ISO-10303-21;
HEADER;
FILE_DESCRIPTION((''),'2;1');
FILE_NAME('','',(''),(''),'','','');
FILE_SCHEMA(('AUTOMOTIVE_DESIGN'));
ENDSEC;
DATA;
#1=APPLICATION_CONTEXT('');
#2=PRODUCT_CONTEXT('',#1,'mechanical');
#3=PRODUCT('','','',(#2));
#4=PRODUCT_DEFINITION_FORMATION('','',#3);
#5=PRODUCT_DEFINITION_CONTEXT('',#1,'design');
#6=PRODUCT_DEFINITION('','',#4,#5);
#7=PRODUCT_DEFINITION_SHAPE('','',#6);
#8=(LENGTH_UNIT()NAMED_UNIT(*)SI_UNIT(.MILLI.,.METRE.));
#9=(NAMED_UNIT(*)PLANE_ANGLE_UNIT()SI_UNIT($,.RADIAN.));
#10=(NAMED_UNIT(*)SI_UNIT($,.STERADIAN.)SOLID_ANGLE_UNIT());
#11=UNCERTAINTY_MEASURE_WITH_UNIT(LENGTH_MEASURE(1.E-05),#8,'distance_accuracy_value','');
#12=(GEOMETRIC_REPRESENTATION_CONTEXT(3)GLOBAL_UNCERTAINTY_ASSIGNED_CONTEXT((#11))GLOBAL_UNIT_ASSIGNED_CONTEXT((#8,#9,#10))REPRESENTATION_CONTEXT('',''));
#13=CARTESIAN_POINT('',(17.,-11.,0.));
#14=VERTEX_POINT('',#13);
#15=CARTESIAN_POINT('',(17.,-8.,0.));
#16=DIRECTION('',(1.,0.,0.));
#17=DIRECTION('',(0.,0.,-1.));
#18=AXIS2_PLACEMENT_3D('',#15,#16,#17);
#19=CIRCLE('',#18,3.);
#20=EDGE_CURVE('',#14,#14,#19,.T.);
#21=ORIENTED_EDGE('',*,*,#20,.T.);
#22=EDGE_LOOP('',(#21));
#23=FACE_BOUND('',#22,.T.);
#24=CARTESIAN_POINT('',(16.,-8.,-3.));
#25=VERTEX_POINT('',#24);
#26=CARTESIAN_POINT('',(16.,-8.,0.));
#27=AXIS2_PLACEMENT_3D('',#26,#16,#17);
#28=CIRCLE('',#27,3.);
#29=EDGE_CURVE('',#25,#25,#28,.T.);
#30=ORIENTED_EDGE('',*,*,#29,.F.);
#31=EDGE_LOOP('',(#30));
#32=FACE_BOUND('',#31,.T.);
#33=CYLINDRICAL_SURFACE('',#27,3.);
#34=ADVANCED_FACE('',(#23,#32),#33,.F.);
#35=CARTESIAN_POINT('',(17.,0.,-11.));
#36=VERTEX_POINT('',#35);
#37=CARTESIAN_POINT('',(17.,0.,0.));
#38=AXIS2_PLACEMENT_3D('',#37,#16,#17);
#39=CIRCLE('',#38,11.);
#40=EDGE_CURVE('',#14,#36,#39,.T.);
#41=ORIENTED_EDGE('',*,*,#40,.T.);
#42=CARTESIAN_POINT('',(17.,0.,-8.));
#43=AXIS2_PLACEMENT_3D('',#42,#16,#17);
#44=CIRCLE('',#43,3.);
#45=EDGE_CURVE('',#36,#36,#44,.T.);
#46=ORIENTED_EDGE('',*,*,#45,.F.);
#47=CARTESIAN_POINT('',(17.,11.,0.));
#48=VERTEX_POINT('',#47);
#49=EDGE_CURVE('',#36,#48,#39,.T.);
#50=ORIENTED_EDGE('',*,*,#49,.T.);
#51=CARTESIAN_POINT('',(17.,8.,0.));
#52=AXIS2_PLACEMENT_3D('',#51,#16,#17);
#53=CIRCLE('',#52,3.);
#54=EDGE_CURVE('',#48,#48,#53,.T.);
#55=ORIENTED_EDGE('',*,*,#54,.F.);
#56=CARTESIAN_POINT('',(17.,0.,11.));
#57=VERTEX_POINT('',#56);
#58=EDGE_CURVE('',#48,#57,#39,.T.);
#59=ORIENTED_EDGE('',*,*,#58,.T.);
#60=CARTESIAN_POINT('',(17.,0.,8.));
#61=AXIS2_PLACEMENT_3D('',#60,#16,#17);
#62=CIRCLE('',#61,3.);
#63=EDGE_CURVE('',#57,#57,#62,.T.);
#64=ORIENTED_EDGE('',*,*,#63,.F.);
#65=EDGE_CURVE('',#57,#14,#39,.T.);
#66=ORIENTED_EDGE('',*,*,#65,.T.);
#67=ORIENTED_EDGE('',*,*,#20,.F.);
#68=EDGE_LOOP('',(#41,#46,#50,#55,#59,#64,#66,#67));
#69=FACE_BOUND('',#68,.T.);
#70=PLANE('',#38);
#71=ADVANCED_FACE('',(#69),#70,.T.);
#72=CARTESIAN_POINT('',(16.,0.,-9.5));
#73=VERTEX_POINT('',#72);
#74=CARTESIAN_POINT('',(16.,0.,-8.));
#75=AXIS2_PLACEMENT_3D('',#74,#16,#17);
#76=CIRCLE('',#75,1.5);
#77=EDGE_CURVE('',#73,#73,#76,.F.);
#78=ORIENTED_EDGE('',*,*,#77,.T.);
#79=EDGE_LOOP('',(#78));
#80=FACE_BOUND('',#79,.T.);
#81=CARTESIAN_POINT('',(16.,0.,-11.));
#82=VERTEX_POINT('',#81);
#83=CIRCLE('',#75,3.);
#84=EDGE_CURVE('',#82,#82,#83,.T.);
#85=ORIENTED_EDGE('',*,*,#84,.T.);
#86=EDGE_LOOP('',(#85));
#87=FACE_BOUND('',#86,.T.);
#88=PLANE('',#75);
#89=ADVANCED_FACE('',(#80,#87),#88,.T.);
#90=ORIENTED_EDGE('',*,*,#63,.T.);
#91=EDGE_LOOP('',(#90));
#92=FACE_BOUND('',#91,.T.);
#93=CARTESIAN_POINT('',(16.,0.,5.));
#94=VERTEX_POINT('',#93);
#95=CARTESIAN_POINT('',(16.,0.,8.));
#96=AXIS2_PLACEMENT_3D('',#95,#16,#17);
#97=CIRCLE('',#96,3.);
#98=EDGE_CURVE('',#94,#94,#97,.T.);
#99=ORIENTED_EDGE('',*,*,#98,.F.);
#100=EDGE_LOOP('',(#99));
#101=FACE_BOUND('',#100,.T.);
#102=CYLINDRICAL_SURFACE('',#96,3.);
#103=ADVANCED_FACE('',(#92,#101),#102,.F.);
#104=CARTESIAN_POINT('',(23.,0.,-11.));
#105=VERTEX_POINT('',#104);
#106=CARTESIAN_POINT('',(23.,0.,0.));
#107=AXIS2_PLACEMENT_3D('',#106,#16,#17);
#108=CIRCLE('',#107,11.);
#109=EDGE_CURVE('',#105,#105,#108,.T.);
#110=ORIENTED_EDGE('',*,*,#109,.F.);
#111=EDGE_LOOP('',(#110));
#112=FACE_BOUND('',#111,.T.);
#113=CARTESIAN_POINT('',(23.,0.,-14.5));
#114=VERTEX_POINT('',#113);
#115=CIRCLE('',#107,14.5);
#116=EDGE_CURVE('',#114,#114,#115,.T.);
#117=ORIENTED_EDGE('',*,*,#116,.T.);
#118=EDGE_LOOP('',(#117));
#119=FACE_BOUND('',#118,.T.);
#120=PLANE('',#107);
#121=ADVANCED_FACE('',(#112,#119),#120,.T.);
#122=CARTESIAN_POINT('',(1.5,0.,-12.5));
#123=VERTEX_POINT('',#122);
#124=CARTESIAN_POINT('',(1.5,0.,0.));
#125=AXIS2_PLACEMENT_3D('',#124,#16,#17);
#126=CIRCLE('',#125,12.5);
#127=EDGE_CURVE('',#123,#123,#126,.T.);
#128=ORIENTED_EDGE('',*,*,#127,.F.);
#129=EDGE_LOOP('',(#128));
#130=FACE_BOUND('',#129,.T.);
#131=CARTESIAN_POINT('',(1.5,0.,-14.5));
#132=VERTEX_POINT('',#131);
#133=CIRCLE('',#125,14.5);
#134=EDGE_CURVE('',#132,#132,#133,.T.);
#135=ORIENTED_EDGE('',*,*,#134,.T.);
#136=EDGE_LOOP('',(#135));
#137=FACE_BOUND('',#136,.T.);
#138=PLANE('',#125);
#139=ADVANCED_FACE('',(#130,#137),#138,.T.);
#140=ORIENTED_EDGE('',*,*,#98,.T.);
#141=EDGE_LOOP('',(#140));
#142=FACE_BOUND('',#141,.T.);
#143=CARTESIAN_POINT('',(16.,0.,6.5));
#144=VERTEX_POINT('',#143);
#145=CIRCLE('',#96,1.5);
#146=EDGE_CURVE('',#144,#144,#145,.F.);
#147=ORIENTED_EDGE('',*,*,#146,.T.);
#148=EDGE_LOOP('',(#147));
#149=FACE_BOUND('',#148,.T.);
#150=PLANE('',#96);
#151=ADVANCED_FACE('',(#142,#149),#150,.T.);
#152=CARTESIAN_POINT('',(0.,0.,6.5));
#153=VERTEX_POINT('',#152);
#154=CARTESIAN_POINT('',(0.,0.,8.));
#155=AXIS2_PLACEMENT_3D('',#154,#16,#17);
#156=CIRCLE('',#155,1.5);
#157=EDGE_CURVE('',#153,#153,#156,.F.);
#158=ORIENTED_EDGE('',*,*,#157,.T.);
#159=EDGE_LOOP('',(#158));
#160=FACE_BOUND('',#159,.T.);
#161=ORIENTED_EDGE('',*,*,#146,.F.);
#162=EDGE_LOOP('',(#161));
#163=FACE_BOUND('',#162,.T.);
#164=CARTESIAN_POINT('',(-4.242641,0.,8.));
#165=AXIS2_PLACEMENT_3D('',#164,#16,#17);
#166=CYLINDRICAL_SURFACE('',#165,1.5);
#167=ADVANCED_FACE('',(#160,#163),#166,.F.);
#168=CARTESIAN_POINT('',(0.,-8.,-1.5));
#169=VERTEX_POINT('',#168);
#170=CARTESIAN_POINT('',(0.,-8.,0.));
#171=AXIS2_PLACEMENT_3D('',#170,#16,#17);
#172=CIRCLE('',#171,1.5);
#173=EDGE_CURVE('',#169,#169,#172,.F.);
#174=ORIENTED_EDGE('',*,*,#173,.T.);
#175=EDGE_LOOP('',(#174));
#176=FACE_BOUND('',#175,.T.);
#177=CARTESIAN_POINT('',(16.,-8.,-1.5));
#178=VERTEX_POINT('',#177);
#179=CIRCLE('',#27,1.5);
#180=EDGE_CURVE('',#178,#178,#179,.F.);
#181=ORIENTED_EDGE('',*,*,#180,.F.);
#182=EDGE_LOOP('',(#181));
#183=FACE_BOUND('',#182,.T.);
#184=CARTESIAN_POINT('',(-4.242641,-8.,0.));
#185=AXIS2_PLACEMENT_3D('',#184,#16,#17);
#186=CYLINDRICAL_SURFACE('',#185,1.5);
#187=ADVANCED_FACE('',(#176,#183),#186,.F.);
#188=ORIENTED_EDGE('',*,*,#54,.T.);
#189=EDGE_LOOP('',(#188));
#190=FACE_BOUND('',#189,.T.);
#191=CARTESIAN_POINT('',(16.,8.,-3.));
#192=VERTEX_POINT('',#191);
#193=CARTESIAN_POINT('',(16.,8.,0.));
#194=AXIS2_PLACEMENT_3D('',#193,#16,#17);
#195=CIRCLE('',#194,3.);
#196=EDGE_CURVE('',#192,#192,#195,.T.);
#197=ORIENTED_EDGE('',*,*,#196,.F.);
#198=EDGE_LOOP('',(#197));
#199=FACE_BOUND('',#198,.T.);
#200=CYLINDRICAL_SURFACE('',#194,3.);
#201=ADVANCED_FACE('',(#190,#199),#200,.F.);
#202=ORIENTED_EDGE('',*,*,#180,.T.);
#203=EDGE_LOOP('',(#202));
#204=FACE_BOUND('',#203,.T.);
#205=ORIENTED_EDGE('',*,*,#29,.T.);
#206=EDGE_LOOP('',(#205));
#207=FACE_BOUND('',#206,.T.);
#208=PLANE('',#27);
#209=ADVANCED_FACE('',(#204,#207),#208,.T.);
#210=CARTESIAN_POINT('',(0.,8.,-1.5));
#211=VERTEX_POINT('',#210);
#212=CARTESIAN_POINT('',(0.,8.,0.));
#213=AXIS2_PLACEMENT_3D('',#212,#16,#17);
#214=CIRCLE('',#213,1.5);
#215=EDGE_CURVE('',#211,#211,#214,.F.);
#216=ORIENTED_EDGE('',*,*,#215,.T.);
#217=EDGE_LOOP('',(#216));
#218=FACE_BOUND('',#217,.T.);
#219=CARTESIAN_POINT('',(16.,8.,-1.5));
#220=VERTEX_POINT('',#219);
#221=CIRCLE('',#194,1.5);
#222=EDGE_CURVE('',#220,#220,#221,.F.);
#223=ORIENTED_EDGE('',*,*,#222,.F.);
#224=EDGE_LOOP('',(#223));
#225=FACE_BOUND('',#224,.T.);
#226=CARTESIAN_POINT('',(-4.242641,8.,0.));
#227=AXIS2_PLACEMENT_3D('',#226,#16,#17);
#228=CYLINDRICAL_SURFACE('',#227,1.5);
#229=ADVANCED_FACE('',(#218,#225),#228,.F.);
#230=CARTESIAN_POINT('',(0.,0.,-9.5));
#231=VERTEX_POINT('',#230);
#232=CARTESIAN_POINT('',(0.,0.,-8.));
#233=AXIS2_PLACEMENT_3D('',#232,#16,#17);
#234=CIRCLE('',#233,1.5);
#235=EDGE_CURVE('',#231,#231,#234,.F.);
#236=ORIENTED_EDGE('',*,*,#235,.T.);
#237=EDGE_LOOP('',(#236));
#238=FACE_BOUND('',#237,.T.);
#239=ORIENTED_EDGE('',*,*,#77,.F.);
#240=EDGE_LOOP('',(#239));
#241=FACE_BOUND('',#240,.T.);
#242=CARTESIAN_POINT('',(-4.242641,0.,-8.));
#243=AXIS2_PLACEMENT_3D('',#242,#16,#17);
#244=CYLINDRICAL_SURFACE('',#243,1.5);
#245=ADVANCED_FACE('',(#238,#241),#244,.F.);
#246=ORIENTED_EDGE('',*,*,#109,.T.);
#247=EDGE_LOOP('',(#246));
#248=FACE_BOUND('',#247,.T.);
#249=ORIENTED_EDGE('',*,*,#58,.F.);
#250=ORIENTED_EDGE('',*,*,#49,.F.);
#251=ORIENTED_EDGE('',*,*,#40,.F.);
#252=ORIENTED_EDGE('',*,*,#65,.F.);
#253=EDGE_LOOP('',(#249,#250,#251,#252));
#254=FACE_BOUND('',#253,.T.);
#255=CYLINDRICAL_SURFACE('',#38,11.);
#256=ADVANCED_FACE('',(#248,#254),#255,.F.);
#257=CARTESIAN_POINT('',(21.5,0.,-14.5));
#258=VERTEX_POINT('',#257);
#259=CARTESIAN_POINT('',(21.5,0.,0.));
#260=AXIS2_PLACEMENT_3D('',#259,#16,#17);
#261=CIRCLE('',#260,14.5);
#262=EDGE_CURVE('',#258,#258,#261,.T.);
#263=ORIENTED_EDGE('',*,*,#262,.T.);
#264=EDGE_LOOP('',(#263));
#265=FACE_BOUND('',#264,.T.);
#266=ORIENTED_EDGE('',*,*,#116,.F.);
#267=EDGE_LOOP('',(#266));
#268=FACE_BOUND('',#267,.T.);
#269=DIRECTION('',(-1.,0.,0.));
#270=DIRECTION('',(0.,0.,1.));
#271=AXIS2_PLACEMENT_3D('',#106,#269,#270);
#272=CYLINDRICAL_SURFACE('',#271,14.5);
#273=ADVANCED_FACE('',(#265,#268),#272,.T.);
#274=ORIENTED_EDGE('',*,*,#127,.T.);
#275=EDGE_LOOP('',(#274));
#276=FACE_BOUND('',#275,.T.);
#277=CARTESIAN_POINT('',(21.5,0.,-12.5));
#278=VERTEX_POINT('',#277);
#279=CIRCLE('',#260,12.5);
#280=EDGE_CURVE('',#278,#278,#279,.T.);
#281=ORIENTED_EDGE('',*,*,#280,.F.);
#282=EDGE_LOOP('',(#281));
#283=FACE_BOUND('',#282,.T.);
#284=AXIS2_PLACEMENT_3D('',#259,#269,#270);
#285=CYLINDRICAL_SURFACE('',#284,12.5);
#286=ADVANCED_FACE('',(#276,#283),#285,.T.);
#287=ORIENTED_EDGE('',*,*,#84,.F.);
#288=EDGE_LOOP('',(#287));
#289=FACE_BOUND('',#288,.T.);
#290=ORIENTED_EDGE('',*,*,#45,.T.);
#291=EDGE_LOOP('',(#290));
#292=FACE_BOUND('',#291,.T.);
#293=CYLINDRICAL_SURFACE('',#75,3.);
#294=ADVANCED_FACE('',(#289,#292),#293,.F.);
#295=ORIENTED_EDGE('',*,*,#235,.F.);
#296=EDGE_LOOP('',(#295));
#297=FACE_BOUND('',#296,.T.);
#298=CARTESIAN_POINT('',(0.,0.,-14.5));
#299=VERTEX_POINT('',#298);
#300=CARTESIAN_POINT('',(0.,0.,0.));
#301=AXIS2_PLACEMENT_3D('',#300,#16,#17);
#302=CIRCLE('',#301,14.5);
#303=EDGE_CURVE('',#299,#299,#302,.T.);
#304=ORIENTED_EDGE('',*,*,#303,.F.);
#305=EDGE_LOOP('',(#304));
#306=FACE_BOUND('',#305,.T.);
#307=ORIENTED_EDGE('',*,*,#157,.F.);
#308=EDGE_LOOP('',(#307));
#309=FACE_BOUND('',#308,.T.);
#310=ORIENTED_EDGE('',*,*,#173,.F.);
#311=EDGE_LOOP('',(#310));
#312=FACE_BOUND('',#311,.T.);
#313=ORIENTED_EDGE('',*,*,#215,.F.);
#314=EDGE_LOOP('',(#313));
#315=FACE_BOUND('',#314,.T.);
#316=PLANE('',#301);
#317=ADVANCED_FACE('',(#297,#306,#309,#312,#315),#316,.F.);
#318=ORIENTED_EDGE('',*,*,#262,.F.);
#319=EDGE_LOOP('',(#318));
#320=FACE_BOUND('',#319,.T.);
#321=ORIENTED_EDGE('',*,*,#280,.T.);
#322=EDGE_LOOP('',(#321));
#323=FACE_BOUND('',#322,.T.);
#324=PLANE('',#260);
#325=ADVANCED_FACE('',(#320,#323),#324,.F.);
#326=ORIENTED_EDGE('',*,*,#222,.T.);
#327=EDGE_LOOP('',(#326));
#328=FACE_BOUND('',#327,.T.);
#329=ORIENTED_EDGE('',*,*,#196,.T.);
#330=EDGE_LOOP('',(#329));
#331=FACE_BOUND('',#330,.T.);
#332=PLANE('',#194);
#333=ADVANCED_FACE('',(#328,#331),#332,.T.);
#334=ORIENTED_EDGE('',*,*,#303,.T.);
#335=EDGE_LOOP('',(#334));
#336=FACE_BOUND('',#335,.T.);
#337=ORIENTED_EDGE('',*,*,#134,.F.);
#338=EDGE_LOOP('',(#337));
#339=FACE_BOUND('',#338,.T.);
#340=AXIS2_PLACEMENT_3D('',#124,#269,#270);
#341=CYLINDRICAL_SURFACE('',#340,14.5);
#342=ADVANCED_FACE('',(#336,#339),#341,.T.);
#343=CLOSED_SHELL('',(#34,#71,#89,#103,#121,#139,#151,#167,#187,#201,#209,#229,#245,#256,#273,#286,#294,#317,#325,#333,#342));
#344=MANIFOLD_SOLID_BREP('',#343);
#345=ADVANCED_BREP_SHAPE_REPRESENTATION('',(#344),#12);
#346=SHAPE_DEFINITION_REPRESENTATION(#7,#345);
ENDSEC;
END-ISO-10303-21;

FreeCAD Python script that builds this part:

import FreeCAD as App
import Part
import Sketcher

V = App.Vector

doc = App.newDocument("Part")
body = doc.addObject("PartDesign::Body", "Body")

# Sketch on YZ plane
sketch1 = body.newObject("Sketcher::SketchObject", "Sketch")
sketch1.AttachmentSupport = (doc.getObject("YZ_Plane"), [""])
sketch1.MapMode = "FlatFace"
sketch1.addGeometry(Part.Circle(V(0, 0, 0), V(0, 0, 1), 14.5), False)
sketch1.addConstraint(Sketcher.Constraint("Coincident", 0, 3, -1, 1))
sketch1.addConstraint(Sketcher.Constraint("Diameter", 0, 29.0))
pad1 = body.newObject("PartDesign::Pad", "Pad")
pad1.Profile = sketch1
pad1.Length = 1.5

# Sketch on YZ plane
sketch2 = body.newObject("Sketcher::SketchObject", "Sketch001")
sketch2.AttachmentSupport = (doc.getObject("YZ_Plane"), [""])
sketch2.MapMode = "FlatFace"
sketch2.AttachmentOffset = App.Placement(V(0, 0, 1.5), App.Rotation())
sketch2.addGeometry(Part.Circle(V(0, 0, 0), V(0, 0, 1), 12.5), False)
sketch2.addConstraint(Sketcher.Constraint("Coincident", 0, 3, -1, 1))
sketch2.addConstraint(Sketcher.Constraint("Diameter", 0, 25.0))
pad2 = body.newObject("PartDesign::Pad", "Pad001")
pad2.Profile = sketch2
pad2.Length = 20

# Sketch on YZ plane
sketch3 = body.newObject("Sketcher::SketchObject", "Sketch002")
sketch3.AttachmentSupport = (doc.getObject("YZ_Plane"), [""])
sketch3.MapMode = "FlatFace"
sketch3.AttachmentOffset = App.Placement(V(0, 0, 21.5), App.Rotation())
sketch3.addGeometry(Part.Circle(V(0, 0, 0), V(0, 0, 1), 14.5), False)
sketch3.addConstraint(Sketcher.Constraint("Coincident", 0, 3, -1, 1))
sketch3.addConstraint(Sketcher.Constraint("Diameter", 0, 29.0))
pad3 = body.newObject("PartDesign::Pad", "Pad002")
pad3.Profile = sketch3
pad3.Length = 1.5

# Sketch on YZ plane
sketch4 = body.newObject("Sketcher::SketchObject", "Sketch003")
sketch4.AttachmentSupport = (doc.getObject("YZ_Plane"), [""])
sketch4.MapMode = "FlatFace"
sketch4.AttachmentOffset = App.Placement(V(0, 0, 23), App.Rotation())
sketch4.addGeometry(Part.Circle(V(0, 0, 0), V(0, 0, 1), 11), False)
sketch4.addConstraint(Sketcher.Constraint("Coincident", 0, 3, -1, 1))
sketch4.addConstraint(Sketcher.Constraint("Diameter", 0, 22.0))
pocket1 = body.newObject("PartDesign::Pocket", "Pocket")
pocket1.Profile = sketch4
pocket1.Length = 6

# Sketch on YZ plane
sketch5 = body.newObject("Sketcher::SketchObject", "Sketch004")
sketch5.AttachmentSupport = (doc.getObject("YZ_Plane"), [""])
sketch5.MapMode = "FlatFace"
sketch5.AttachmentOffset = App.Placement(V(0, 0, 17), App.Rotation())
sketch5.addGeometry(Part.Circle(V(8, 0, 0), V(0, 0, 1), 1.5), False)
sketch5.addGeometry(Part.Circle(V(0, -8, 0), V(0, 0, 1), 1.5), False)
sketch5.addGeometry(Part.Circle(V(-8, 0, 0), V(0, 0, 1), 1.5), False)
sketch5.addGeometry(Part.Circle(V(0, 8, 0), V(0, 0, 1), 1.5), False)
sketch5.addConstraint(Sketcher.Constraint("Equal", 0, 1))
sketch5.addConstraint(Sketcher.Constraint("Equal", 1, 2))
sketch5.addConstraint(Sketcher.Constraint("Equal", 2, 3))
sketch5.addConstraint(Sketcher.Constraint("Symmetric", 0, 3, 2, 3, -1, 1))
sketch5.addConstraint(Sketcher.Constraint("Symmetric", 1, 3, 3, 3, -1, 1))
sketch5.addConstraint(Sketcher.Constraint("PointOnObject", 0, 3, -1))
sketch5.addConstraint(Sketcher.Constraint("PointOnObject", 1, 3, -2))
sketch5.addConstraint(Sketcher.Constraint("Diameter", 0, 3.0))
sketch5.addConstraint(Sketcher.Constraint("DistanceX", -1, 1, 0, 3, 8.0))
sketch5.addConstraint(Sketcher.Constraint("DistanceY", 1, 3, -1, 1, 8.0))
pocket2 = body.newObject("PartDesign::Pocket", "Pocket001")
pocket2.Profile = sketch5
pocket2.Length = 17

# Sketch on YZ plane
sketch6 = body.newObject("Sketcher::SketchObject", "Sketch005")
sketch6.AttachmentSupport = (doc.getObject("YZ_Plane"), [""])
sketch6.MapMode = "FlatFace"
sketch6.AttachmentOffset = App.Placement(V(0, 0, 17), App.Rotation())
sketch6.addGeometry(Part.Circle(V(8, 0, 0), V(0, 0, 1), 3), False)
sketch6.addGeometry(Part.Circle(V(0, -8, 0), V(0, 0, 1), 3), False)
sketch6.addGeometry(Part.Circle(V(-8, 0, 0), V(0, 0, 1), 3), False)
sketch6.addGeometry(Part.Circle(V(0, 8, 0), V(0, 0, 1), 3), False)
sketch6.addConstraint(Sketcher.Constraint("Equal", 0, 1))
sketch6.addConstraint(Sketcher.Constraint("Equal", 1, 2))
sketch6.addConstraint(Sketcher.Constraint("Equal", 2, 3))
sketch6.addConstraint(Sketcher.Constraint("Symmetric", 0, 3, 2, 3, -1, 1))
sketch6.addConstraint(Sketcher.Constraint("Symmetric", 1, 3, 3, 3, -1, 1))
sketch6.addConstraint(Sketcher.Constraint("PointOnObject", 0, 3, -1))
sketch6.addConstraint(Sketcher.Constraint("PointOnObject", 1, 3, -2))
sketch6.addConstraint(Sketcher.Constraint("Diameter", 0, 6.0))
sketch6.addConstraint(Sketcher.Constraint("DistanceX", -1, 1, 0, 3, 8.0))
sketch6.addConstraint(Sketcher.Constraint("DistanceY", 1, 3, -1, 1, 8.0))
pocket3 = body.newObject("PartDesign::Pocket", "Pocket002")
pocket3.Profile = sketch6
pocket3.Length = 1

doc.recompute()
